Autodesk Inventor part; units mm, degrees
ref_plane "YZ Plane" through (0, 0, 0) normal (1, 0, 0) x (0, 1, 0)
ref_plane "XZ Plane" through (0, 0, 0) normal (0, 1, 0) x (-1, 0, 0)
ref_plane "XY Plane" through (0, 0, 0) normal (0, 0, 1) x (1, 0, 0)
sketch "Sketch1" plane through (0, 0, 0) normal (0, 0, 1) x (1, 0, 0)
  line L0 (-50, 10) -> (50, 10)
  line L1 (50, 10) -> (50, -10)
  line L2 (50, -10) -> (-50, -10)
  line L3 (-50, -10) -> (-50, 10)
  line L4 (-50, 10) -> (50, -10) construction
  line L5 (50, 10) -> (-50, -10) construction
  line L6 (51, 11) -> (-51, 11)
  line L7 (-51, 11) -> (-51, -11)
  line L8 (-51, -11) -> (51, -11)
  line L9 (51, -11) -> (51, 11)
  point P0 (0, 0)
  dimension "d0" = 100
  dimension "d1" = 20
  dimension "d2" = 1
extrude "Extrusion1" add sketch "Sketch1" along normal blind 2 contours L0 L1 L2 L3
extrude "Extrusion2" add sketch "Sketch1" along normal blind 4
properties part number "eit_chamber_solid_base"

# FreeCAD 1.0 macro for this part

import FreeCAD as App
import Part
import Sketcher


def add_polygon(sketch, points):
    """Adds a closed chain of lines whose ends are joined by coincident constraints."""
    first, n = sketch.GeometryCount, len(points)
    for a, b in zip(points, points[1:] + points[:1]):
        sketch.addGeometry(Part.LineSegment(App.Vector(*a, 0), App.Vector(*b, 0)), False)
    for i in range(n):
        sketch.addConstraint(Sketcher.Constraint("Coincident", first + i, 2, first + (i + 1) % n, 1))

doc = App.newDocument("Part")
body = doc.addObject("PartDesign::Body", "Body")

# Sketch on XY plane
sketch1 = doc.addObject("Sketcher::SketchObject", "Sketch")
body.addObject(sketch1)
sketch1.AttachmentSupport = (doc.XY_Plane, [""])
sketch1.MapMode = "FlatFace"
add_polygon(sketch1, [(50, 10), (-50, 10), (-50, -10), (50, -10)])  # lines 0-3
sketch1.addConstraint([
    Sketcher.Constraint("Horizontal", 0),
    Sketcher.Constraint("Vertical", 1),
    Sketcher.Constraint("Horizontal", 2),
    Sketcher.Constraint("Vertical", 3),
    Sketcher.Constraint("Symmetric", 0, 2, 2, 2, -1, 1),
    Sketcher.Constraint("DistanceX", 0, 2, 0, 1, 100.0),
    Sketcher.Constraint("DistanceY", 1, 2, 1, 1, 20.0),
])
pad1 = doc.addObject("PartDesign::Pad", "Pad")
body.addObject(pad1)
pad1.Profile = sketch1
pad1.Length = 2

# Sketch on XY plane
sketch2 = doc.addObject("Sketcher::SketchObject", "Sketch001")
body.addObject(sketch2)
sketch2.AttachmentSupport = (doc.XY_Plane, [""])
sketch2.MapMode = "FlatFace"
add_polygon(sketch2, [(51, -11), (51, 11), (-51, 11), (-51, -11)])  # lines 0-3
add_polygon(sketch2, [(-50, -10), (-50, 10), (50, 10), (50, -10)])  # lines 4-7
sketch2.addConstraint([
    Sketcher.Constraint("Vertical", 0),
    Sketcher.Constraint("Horizontal", 1),
    Sketcher.Constraint("Vertical", 2),
    Sketcher.Constraint("Horizontal", 3),
    Sketcher.Constraint("Vertical", 4),
    Sketcher.Constraint("Horizontal", 5),
    Sketcher.Constraint("Vertical", 6),
    Sketcher.Constraint("Horizontal", 7),
    Sketcher.Constraint("Symmetric", 0, 2, 2, 2, -1, 1),
    Sketcher.Constraint("Symmetric", 4, 2, 6, 2, -1, 1),
    Sketcher.Constraint("DistanceX", 5, 1, 5, 2, 100.0),
    Sketcher.Constraint("DistanceY", 4, 1, 4, 2, 20.0),
    Sketcher.Constraint("DistanceX", 1, 2, 4, 2, 1.0),
    Sketcher.Constraint("DistanceY", 4, 2, 1, 2, 1.0),
])
pad2 = doc.addObject("PartDesign::Pad", "Pad001")
body.addObject(pad2)
pad2.Profile = sketch2
pad2.Length = 4

doc.recompute()
